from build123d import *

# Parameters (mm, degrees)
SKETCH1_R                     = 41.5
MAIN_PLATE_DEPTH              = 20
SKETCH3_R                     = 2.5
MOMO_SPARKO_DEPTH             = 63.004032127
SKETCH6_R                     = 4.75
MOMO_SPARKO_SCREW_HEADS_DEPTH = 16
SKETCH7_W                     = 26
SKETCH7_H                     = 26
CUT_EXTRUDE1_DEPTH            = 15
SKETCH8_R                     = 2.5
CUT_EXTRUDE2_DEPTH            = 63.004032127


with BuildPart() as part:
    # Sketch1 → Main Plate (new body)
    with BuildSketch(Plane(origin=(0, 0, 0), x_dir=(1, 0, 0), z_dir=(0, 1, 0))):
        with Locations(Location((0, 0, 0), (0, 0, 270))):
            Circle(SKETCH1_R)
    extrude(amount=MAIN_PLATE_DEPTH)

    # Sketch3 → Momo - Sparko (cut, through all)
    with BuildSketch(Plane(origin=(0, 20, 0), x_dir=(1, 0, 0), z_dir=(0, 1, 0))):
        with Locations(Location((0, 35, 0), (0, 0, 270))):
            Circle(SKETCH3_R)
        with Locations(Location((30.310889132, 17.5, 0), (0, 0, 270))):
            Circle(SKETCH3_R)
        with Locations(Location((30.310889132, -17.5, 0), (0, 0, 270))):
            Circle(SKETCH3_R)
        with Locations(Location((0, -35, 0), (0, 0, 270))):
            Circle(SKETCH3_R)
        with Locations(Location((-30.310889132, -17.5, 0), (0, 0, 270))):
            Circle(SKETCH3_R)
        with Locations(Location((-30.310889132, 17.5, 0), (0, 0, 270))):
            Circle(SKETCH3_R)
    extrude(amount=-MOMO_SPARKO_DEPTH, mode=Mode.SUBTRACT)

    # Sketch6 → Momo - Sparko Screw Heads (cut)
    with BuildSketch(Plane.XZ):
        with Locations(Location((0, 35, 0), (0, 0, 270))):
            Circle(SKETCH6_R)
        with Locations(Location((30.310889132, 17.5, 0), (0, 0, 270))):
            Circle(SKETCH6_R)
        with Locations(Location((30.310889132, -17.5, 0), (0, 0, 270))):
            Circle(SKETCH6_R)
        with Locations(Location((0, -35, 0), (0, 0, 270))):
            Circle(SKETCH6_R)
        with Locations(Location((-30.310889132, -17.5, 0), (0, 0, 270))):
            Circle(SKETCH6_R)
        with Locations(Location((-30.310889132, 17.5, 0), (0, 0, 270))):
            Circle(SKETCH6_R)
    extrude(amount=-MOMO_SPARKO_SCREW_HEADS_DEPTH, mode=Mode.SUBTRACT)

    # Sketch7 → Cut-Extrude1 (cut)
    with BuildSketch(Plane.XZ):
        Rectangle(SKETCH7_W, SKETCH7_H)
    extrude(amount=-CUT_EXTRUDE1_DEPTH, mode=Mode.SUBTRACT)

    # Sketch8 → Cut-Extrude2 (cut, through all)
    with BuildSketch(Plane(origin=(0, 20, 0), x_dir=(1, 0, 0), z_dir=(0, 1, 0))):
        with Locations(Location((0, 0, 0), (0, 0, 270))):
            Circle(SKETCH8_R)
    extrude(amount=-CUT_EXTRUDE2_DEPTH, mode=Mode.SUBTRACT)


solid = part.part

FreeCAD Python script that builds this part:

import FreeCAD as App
import Part
import Sketcher
from FreeCAD import Vector
Q = App.Units.Quantity


def add_polygon(sketch, points):
    """Adds a closed chain of lines whose ends are joined by coincident constraints."""
    first, n = sketch.GeometryCount, len(points)
    for a, b in zip(points, points[1:] + points[:1]):
        sketch.addGeometry(Part.LineSegment(App.Vector(*a, 0), App.Vector(*b, 0)), False)
    for i in range(n):
        sketch.addConstraint(Sketcher.Constraint("Coincident", first + i, 2, first + (i + 1) % n, 1))

doc = App.newDocument("Part")
params = doc.addObject("Spreadsheet::Sheet", "Params")
for row, (alias, value) in enumerate([
    ("sketch1_diameter", "83 mm"),
    ("pad1_length", "20 mm"),
    ("sketch2_diameter", "5 mm"),
    ("sketch3_diameter", "9.5 mm"),
    ("pocket2_length", "16 mm"),
    ("sketch4_width", "26 mm"),
    ("pocket3_length", "15 mm"),
    ("sketch5_diameter", "5 mm"),
], start=1):
    params.set(f"A{row}", alias)
    params.set(f"B{row}", "=" + value)
    params.setAlias(f"B{row}", alias)

body = doc.addObject("PartDesign::Body", "Body")

# Sketch on XZ plane
sketch1 = body.newObject("Sketcher::SketchObject", "Sketch")
sketch1.AttachmentSupport = (doc.getObject("XZ_Plane"), [""])
sketch1.MapMode = "FlatFace"
sketch1.addGeometry(Part.Circle(Vector(0, 0, 0), Vector(0, 0, 1), 42), False)
sketch1.addConstraint(Sketcher.Constraint("Coincident", 0, 3, -1, 1))
sketch1.addConstraint(Sketcher.Constraint("Diameter", 0, Q("83 mm")))
sketch1.setExpression("Constraints[1]", "Params.sketch1_diameter")
pad1 = body.newObject("PartDesign::Pad", "Pad")
pad1.Profile = sketch1
pad1.setExpression("Length", "Params.pad1_length")
pad1.Reversed = True

# Sketch on XZ plane
sketch2 = body.newObject("Sketcher::SketchObject", "Sketch001")
sketch2.AttachmentSupport = (doc.getObject("XZ_Plane"), [""])
sketch2.MapMode = "FlatFace"
sketch2.AttachmentOffset = App.Placement(Vector(0, 0, -20), App.Rotation())
sketch2.addGeometry(Part.Circle(Vector(0, -35, 0), Vector(0, 0, 1), 2.5), False)
sketch2.addGeometry(Part.Circle(Vector(30.3, -17.5, 0), Vector(0, 0, 1), 2.5), False)
sketch2.addGeometry(Part.Circle(Vector(30.3, 17.5, 0), Vector(0, 0, 1), 2.5), False)
sketch2.addGeometry(Part.Circle(Vector(0, 35, 0), Vector(0, 0, 1), 2.5), False)
sketch2.addGeometry(Part.Circle(Vector(-30.3, 17.5, 0), Vector(0, 0, 1), 2.5), False)
sketch2.addGeometry(Part.Circle(Vector(-30.3, -17.5, 0), Vector(0, 0, 1), 2.5), False)
sketch2.addConstraint(Sketcher.Constraint("Equal", 0, 1))
sketch2.addConstraint(Sketcher.Constraint("Equal", 1, 2))
sketch2.addConstraint(Sketcher.Constraint("Equal", 2, 3))
sketch2.addConstraint(Sketcher.Constraint("Equal", 3, 4))
sketch2.addConstraint(Sketcher.Constraint("Equal", 4, 5))
sketch2.addConstraint(Sketcher.Constraint("Symmetric", 0, 3, 3, 3, -1, 1))
sketch2.addConstraint(Sketcher.Constraint("Symmetric", 1, 3, 4, 3, -1, 1))
sketch2.addConstraint(Sketcher.Constraint("Symmetric", 2, 3, 5, 3, -1, 1))
sketch2.addConstraint(Sketcher.Constraint("Symmetric", 2, 3, 4, 3, -2))
sketch2.addConstraint(Sketcher.Constraint("PointOnObject", 0, 3, -2))
sketch2.addConstraint(Sketcher.Constraint("Diameter", 0, Q("5 mm")))
sketch2.addConstraint(Sketcher.Constraint("DistanceY", 0, 3, -1, 1, Q("35 mm")))
sketch2.addConstraint(Sketcher.Constraint("DistanceY", 1, 3, 2, 3, Q("35 mm")))
sketch2.addConstraint(Sketcher.Constraint("DistanceX", -1, 1, 1, 3, Q("30.310889 mm")))
sketch2.setExpression("Constraints[10]", "Params.sketch2_diameter")
pocket1 = body.newObject("PartDesign::Pocket", "Pocket")
pocket1.Profile = sketch2
pocket1.Type = "ThroughAll"
pocket1.Reversed = True

# Sketch on XZ plane
sketch3 = body.newObject("Sketcher::SketchObject", "Sketch002")
sketch3.AttachmentSupport = (doc.getObject("XZ_Plane"), [""])
sketch3.MapMode = "FlatFace"
sketch3.addGeometry(Part.Circle(Vector(0, 35, 0), Vector(0, 0, 1), 4.8), False)
sketch3.addGeometry(Part.Circle(Vector(30.3, 17.5, 0), Vector(0, 0, 1), 4.8), False)
sketch3.addGeometry(Part.Circle(Vector(30.3, -17.5, 0), Vector(0, 0, 1), 4.8), False)
sketch3.addGeometry(Part.Circle(Vector(0, -35, 0), Vector(0, 0, 1), 4.8), False)
sketch3.addGeometry(Part.Circle(Vector(-30.3, -17.5, 0), Vector(0, 0, 1), 4.8), False)
sketch3.addGeometry(Part.Circle(Vector(-30.3, 17.5, 0), Vector(0, 0, 1), 4.8), False)
sketch3.addConstraint(Sketcher.Constraint("Equal", 0, 1))
sketch3.addConstraint(Sketcher.Constraint("Equal", 1, 2))
sketch3.addConstraint(Sketcher.Constraint("Equal", 2, 3))
sketch3.addConstraint(Sketcher.Constraint("Equal", 3, 4))
sketch3.addConstraint(Sketcher.Constraint("Equal", 4, 5))
sketch3.addConstraint(Sketcher.Constraint("Symmetric", 0, 3, 3, 3, -1, 1))
sketch3.addConstraint(Sketcher.Constraint("Symmetric", 1, 3, 4, 3, -1, 1))
sketch3.addConstraint(Sketcher.Constraint("Symmetric", 2, 3, 5, 3, -1, 1))
sketch3.addConstraint(Sketcher.Constraint("Symmetric", 2, 3, 4, 3, -2))
sketch3.addConstraint(Sketcher.Constraint("PointOnObject", 0, 3, -2))
sketch3.addConstraint(Sketcher.Constraint("Diameter", 0, Q("9.5 mm")))
sketch3.addConstraint(Sketcher.Constraint("DistanceY", -1, 1, 0, 3, Q("35 mm")))
sketch3.addConstraint(Sketcher.Constraint("DistanceY", 2, 3, 1, 3, Q("35 mm")))
sketch3.addConstraint(Sketcher.Constraint("DistanceX", -1, 1, 1, 3, Q("30.310889 mm")))
sketch3.setExpression("Constraints[10]", "Params.sketch3_diameter")
pocket2 = body.newObject("PartDesign::Pocket", "Pocket001")
pocket2.Profile = sketch3
pocket2.setExpression("Length", "Params.pocket2_length")

# Sketch on XZ plane
sketch4 = body.newObject("Sketcher::SketchObject", "Sketch003")
sketch4.AttachmentSupport = (doc.getObject("XZ_Plane"), [""])
sketch4.MapMode = "FlatFace"
add_polygon(sketch4, [(-13, 13), (-13, -13), (13, -13), (13, 13)])  # lines 0-3
sketch4.addConstraint(Sketcher.Constraint("Vertical", 0))
sketch4.addConstraint(Sketcher.Constraint("Horizontal", 1))
sketch4.addConstraint(Sketcher.Constraint("Vertical", 2))
sketch4.addConstraint(Sketcher.Constraint("Horizontal", 3))
sketch4.addConstraint(Sketcher.Constraint("Symmetric", 0, 2, 2, 2, -1, 1))
sketch4.addConstraint(Sketcher.Constraint("Equal", 3, 0))
sketch4.addConstraint(Sketcher.Constraint("DistanceX", 1, 1, 1, 2, Q("26 mm")))
sketch4.setExpression("Constraints[10]", "Params.sketch4_width")
pocket3 = body.newObject("PartDesign::Pocket", "Pocket002")
pocket3.Profile = sketch4
pocket3.setExpression("Length", "Params.pocket3_length")

# Sketch on XZ plane
sketch5 = body.newObject("Sketcher::SketchObject", "Sketch004")
sketch5.AttachmentSupport = (doc.getObject("XZ_Plane"), [""])
sketch5.MapMode = "FlatFace"
sketch5.AttachmentOffset = App.Placement(Vector(0, 0, -20), App.Rotation())
sketch5.addGeometry(Part.Circle(Vector(0, 0, 0), Vector(0, 0, 1), 2.5), False)
sketch5.addConstraint(Sketcher.Constraint("Coincident", 0, 3, -1, 1))
sketch5.addConstraint(Sketcher.Constraint("Diameter", 0, Q("5 mm")))
sketch5.setExpression("Constraints[1]", "Params.sketch5_diameter")
pocket4 = body.newObject("PartDesign::Pocket", "Pocket003")
pocket4.Profile = sketch5
pocket4.Type = "ThroughAll"
pocket4.Reversed = True

doc.recompute()
